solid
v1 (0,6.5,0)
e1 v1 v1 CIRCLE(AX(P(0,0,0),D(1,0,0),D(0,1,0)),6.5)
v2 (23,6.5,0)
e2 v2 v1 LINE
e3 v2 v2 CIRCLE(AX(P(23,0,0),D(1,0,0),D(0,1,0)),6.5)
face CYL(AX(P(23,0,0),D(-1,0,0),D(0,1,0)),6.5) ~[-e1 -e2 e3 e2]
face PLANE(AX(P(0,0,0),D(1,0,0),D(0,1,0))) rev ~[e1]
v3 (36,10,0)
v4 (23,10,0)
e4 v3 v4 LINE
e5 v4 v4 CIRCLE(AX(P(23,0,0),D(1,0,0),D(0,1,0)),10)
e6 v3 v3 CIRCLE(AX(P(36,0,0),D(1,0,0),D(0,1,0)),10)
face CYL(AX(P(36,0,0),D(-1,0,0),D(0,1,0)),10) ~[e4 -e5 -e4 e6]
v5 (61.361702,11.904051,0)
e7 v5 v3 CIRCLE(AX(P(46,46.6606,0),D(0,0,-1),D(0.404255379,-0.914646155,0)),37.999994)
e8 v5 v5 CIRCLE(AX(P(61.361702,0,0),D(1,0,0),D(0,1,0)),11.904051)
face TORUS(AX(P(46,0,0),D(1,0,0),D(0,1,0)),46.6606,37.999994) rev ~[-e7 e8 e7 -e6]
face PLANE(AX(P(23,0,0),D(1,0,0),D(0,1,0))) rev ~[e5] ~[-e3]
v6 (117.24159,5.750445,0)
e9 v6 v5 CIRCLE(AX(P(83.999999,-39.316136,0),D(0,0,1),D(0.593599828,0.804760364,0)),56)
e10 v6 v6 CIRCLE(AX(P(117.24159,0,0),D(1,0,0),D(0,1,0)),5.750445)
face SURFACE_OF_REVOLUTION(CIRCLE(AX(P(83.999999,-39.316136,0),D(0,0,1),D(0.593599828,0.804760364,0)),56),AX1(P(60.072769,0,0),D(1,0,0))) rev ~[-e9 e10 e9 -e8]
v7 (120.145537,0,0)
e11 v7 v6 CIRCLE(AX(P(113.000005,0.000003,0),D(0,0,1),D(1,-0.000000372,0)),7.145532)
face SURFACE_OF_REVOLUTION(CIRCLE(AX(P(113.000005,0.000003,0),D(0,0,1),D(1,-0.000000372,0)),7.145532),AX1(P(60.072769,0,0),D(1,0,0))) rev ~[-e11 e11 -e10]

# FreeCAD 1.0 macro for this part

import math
import FreeCAD as App
import Part
import Sketcher
Q = App.Units.Quantity

doc = App.newDocument("Part")
body = doc.addObject("PartDesign::Body", "Body")

sketch1 = body.newObject("Sketcher::SketchObject", "Sketch")
sketch1.AttachmentSupport = (doc.getObject("XY_Plane"), [""])
sketch1.MapMode = "FlatFace"
sketch1.addGeometry(Part.LineSegment(App.Vector(0, 6.5, 0), App.Vector(0, 0, 0)), False)
sketch1.addGeometry(Part.LineSegment(App.Vector(0, 0, 0), App.Vector(120.1, 0, 0)), False)
sketch1.addGeometry(Part.ArcOfCircle(Part.Circle(App.Vector(113, 0, 0), App.Vector(0, 0, 1), 7.1), math.radians(0), math.radians(54)), False)
sketch1.addGeometry(Part.ArcOfCircle(Part.Circle(App.Vector(84, -39.3, 0), App.Vector(0, 0, 1), 56), math.radians(54), math.radians(114)), False)
sketch1.addGeometry(Part.ArcOfCircle(Part.Circle(App.Vector(46, 46.7, 0), App.Vector(0, 0, 1), 38), math.radians(-105), math.radians(-66)), False)
sketch1.addGeometry(Part.LineSegment(App.Vector(36, 10, 0), App.Vector(23, 10, 0)), False)
sketch1.addGeometry(Part.LineSegment(App.Vector(23, 10, 0), App.Vector(23, 6.5, 0)), False)
sketch1.addGeometry(Part.LineSegment(App.Vector(23, 6.5, 0), App.Vector(0, 6.5, 0)), False)
sketch1.addConstraint(Sketcher.Constraint("Coincident", 0, 2, 1, 1))
sketch1.addConstraint(Sketcher.Constraint("Coincident", 1, 2, 2, 1))
sketch1.addConstraint(Sketcher.Constraint("Tangent", 2, 2, 3, 1))
sketch1.addConstraint(Sketcher.Constraint("Tangent", 3, 2, 4, 2))
sketch1.addConstraint(Sketcher.Constraint("Coincident", 4, 1, 5, 1))
sketch1.addConstraint(Sketcher.Constraint("Coincident", 5, 2, 6, 1))
sketch1.addConstraint(Sketcher.Constraint("Coincident", 6, 2, 7, 1))
sketch1.addConstraint(Sketcher.Constraint("Coincident", 7, 2, 0, 1))
sketch1.addConstraint(Sketcher.Constraint("Vertical", 0))
sketch1.addConstraint(Sketcher.Constraint("Horizontal", 1))
sketch1.addConstraint(Sketcher.Constraint("Horizontal", 5))
sketch1.addConstraint(Sketcher.Constraint("Vertical", 6))
sketch1.addConstraint(Sketcher.Constraint("Horizontal", 7))
sketch1.addConstraint(Sketcher.Constraint("Coincident", 0, 2, -1, 1))
sketch1.addConstraint(Sketcher.Constraint("Radius", 3, Q("56 mm")))
sketch1.addConstraint(Sketcher.Constraint("DistanceX", 5, 2, 5, 1, Q("13 mm")))
sketch1.addConstraint(Sketcher.Constraint("DistanceX", 7, 2, 7, 1, Q("23 mm")))
sketch1.addConstraint(Sketcher.Constraint("DistanceY", 0, 2, 0, 1, Q("6.5 mm")))
sketch1.addConstraint(Sketcher.Constraint("DistanceY", 6, 2, 6, 1, Q("3.5 mm")))
sketch1.addConstraint(Sketcher.Constraint("DistanceX", -1, 1, 3, 3, Q("83.999999 mm")))
sketch1.addConstraint(Sketcher.Constraint("DistanceX", -1, 1, 4, 3, Q("46 mm")))
sketch1.addConstraint(Sketcher.Constraint("Radius", 2, Q("7.145532 mm")))
sketch1.addConstraint(Sketcher.Constraint("Radius", 4, Q("37.999994 mm")))
sketch1.addConstraint(Sketcher.Constraint("DistanceX", 1, 1, 1, 2, Q("120.145537 mm")))
revolution = body.newObject("PartDesign::Revolution", "Revolution")
revolution.Profile = sketch1
revolution.ReferenceAxis = (sketch1, ["H_Axis"])
revolution.Angle = 360

doc.recompute()
